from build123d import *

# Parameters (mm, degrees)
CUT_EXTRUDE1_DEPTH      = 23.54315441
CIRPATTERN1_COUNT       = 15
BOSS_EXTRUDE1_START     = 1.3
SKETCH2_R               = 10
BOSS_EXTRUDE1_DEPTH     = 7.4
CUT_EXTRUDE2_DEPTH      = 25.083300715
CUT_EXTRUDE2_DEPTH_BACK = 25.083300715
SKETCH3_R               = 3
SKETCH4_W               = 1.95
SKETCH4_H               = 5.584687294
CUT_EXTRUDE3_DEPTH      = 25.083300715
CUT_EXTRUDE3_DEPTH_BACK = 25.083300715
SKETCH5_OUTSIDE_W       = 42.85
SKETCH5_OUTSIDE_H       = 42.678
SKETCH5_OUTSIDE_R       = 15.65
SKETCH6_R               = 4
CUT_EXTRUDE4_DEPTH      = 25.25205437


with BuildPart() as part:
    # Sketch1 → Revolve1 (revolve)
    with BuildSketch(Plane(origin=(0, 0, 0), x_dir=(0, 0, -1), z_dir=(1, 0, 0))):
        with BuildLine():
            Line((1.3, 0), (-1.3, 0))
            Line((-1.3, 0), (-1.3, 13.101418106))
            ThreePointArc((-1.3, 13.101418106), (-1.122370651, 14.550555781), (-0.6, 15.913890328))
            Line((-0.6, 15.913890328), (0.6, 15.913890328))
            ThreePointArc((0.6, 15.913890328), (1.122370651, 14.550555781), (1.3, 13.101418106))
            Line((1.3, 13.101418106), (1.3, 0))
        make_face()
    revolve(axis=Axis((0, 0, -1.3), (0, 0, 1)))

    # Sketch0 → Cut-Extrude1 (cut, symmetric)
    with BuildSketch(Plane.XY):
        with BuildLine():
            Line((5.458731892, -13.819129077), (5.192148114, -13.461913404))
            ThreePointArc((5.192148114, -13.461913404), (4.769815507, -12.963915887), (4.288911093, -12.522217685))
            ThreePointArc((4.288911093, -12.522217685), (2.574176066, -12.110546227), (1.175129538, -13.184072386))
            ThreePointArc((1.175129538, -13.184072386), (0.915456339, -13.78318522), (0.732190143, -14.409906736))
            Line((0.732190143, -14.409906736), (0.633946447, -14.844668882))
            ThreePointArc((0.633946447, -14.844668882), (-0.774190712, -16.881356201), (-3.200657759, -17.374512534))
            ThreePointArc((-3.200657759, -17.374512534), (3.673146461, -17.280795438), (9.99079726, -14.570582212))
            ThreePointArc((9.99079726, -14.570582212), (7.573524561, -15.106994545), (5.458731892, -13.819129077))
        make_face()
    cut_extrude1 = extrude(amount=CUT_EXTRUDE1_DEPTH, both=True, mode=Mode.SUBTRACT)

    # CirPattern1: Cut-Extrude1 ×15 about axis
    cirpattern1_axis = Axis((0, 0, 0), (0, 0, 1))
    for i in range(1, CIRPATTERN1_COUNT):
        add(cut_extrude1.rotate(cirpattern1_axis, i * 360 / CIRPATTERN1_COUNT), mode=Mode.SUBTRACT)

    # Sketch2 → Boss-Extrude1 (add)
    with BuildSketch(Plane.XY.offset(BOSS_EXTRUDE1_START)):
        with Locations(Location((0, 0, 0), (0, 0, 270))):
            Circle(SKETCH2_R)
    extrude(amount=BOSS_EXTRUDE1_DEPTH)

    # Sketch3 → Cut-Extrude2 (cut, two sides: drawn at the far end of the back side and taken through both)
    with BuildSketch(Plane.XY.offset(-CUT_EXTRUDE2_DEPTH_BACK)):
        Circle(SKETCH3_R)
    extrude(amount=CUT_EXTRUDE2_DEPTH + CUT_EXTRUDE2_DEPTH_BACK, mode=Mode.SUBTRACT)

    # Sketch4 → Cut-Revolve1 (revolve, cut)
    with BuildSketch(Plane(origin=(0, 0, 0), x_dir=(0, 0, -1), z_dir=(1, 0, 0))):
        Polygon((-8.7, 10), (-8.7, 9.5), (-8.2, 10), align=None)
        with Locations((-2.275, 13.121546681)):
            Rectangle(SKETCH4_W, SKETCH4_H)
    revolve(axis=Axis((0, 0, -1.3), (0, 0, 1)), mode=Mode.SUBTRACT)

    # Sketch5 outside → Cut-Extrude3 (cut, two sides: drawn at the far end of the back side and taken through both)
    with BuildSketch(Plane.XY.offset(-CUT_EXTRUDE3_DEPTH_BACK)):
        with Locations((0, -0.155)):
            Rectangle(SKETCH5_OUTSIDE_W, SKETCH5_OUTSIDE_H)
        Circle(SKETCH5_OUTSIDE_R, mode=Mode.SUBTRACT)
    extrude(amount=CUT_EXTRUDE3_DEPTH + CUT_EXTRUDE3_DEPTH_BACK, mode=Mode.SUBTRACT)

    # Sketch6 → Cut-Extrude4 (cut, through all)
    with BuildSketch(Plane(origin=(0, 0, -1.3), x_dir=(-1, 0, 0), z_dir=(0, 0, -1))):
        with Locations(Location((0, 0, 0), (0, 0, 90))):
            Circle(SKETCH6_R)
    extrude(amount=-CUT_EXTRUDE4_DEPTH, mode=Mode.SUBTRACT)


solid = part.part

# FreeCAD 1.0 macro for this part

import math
import FreeCAD as App
import Part
import Sketcher
Q = App.Units.Quantity


def add_polygon(sketch, points):
    """Adds a closed chain of lines whose ends are joined by coincident constraints."""
    first, n = sketch.GeometryCount, len(points)
    for a, b in zip(points, points[1:] + points[:1]):
        sketch.addGeometry(Part.LineSegment(App.Vector(*a, 0), App.Vector(*b, 0)), False)
    for i in range(n):
        sketch.addConstraint(Sketcher.Constraint("Coincident", first + i, 2, first + (i + 1) % n, 1))

doc = App.newDocument("Part")
params = doc.addObject("Spreadsheet::Sheet", "Params")
for row, (alias, value) in enumerate([
    ("sketch1_radius", "6 mm"),
    ("sketch1_height", "2.6 mm"),
    ("sketch1_height2", "1.2 mm"),
    ("revolution_angle", "360 deg"),
    ("pocket1_length", "47.086309 mm"),
    ("sketch3_diameter", "20 mm"),
    ("pad1_length", "7.4 mm"),
    ("sketch4_diameter", "6 mm"),
    ("sketch5_width", "0.5 mm"),
    ("sketch5_height", "1.95 mm"),
    ("groove_angle", "360 deg"),
    ("sketch6_diameter", "31.3 mm"),
    ("sketch6_width", "42.85 mm"),
    ("sketch7_diameter", "8 mm"),
], start=1):
    params.set(f"A{row}", alias)
    params.set(f"B{row}", "=" + value)
    params.setAlias(f"B{row}", alias)

body = doc.addObject("PartDesign::Body", "Body")

# Sketch on YZ plane
sketch1 = doc.addObject("Sketcher::SketchObject", "Sketch")
body.addObject(sketch1)
sketch1.AttachmentSupport = (doc.YZ_Plane, [""])
sketch1.MapMode = "FlatFace"
sketch1.addGeometry([
    Part.LineSegment(App.Vector(0, 1.3, 0), App.Vector(0, -1.3, 0)),  # 0
    Part.LineSegment(App.Vector(0, -1.3, 0), App.Vector(13.1, -1.3, 0)),  # 1
    Part.ArcOfCircle(Part.Circle(App.Vector(13.1, 4.7, 0), App.Vector(0, 0, 1), 6), math.radians(-90), math.radians(-62)),  # 2
    Part.LineSegment(App.Vector(15.9, -0.6, 0), App.Vector(15.9, 0.6, 0)),  # 3
    Part.ArcOfCircle(Part.Circle(App.Vector(13.1, -4.7, 0), App.Vector(0, 0, 1), 6), math.radians(62), math.radians(90)),  # 4
    Part.LineSegment(App.Vector(13.1, 1.3, 0), App.Vector(0, 1.3, 0)),  # 5
], False)
sketch1.addConstraint([
    Sketcher.Constraint("Coincident", 0, 2, 1, 1),
    Sketcher.Constraint("Tangent", 1, 2, 2, 1),
    Sketcher.Constraint("Coincident", 2, 2, 3, 1),
    Sketcher.Constraint("Coincident", 3, 2, 4, 1),
    Sketcher.Constraint("Tangent", 4, 2, 5, 1),
    Sketcher.Constraint("Coincident", 5, 2, 0, 1),
    Sketcher.Constraint("Vertical", 0),
    Sketcher.Constraint("Horizontal", 1),
    Sketcher.Constraint("Vertical", 3),
    Sketcher.Constraint("Horizontal", 5),
    Sketcher.Constraint("Equal", 2, 4),
    Sketcher.Constraint("Symmetric", 0, 2, 5, 2, -1, 1),
    Sketcher.Constraint("Vertical", 2, 3, 4, 3),
    Sketcher.Constraint("Radius", 2, Q("6 mm")),
    Sketcher.Constraint("DistanceY", 0, 2, 0, 1, Q("2.6 mm")),
    Sketcher.Constraint("DistanceY", 3, 1, 3, 2, Q("1.2 mm")),
    Sketcher.Constraint("DistanceX", 1, 1, 1, 2, Q("13.101418 mm")),
])
sketch1.setExpression("Constraints[13]", "Params.sketch1_radius")
sketch1.setExpression("Constraints[14]", "Params.sketch1_height")
sketch1.setExpression("Constraints[15]", "Params.sketch1_height2")
revolution = doc.addObject("PartDesign::Revolution", "Revolution")
body.addObject(revolution)
revolution.Profile = sketch1
revolution.ReferenceAxis = (sketch1, ["V_Axis"])
revolution.setExpression("Angle", "Params.revolution_angle")

# Sketch on XY plane
sketch2 = doc.addObject("Sketcher::SketchObject", "Sketch001")
body.addObject(sketch2)
sketch2.AttachmentSupport = (doc.XY_Plane, [""])
sketch2.MapMode = "FlatFace"
sketch2.addGeometry([
    Part.LineSegment(App.Vector(5.46, -13.82, 0), App.Vector(5.19, -13.46, 0)),  # 0
    Part.ArcOfCircle(Part.Circle(App.Vector(0.99, -16.6, 0), App.Vector(0, 0, 1), 5.25), math.radians(36.73), math.radians(51)),  # 1
    Part.ArcOfCircle(Part.Circle(App.Vector(3, -14.11, 0), App.Vector(0, 0, 1), 2.05), math.radians(51), math.radians(153)),  # 2
    Part.ArcOfCircle(Part.Circle(App.Vector(5.85, -15.57, 0), App.Vector(0, 0, 1), 5.25), math.radians(153), math.radians(167.27)),  # 3
    Part.LineSegment(App.Vector(0.73, -14.41, 0), App.Vector(0.63, -14.84, 0)),  # 4
    Part.ArcOfCircle(Part.Circle(App.Vector(-2.6, -14.11, 0), App.Vector(0, 0, 1), 3.32), math.radians(-100), math.radians(-13)),  # 5
    Part.ArcOfCircle(Part.Circle(App.Vector(0, 0, 0), App.Vector(0, 0, 1), 17.67), math.radians(-100), math.radians(-56)),  # 6
    Part.ArcOfCircle(Part.Circle(App.Vector(8.12, -11.84, 0), App.Vector(0, 0, 1), 3.32), math.radians(-143), math.radians(-56)),  # 7
], False)
sketch2.addConstraint([
    Sketcher.Constraint("Tangent", 0, 2, 1, 1),
    Sketcher.Constraint("Tangent", 1, 2, 2, 1),
    Sketcher.Constraint("Tangent", 2, 2, 3, 1),
    Sketcher.Constraint("Tangent", 3, 2, 4, 1),
    Sketcher.Constraint("Tangent", 4, 2, 5, 2),
    Sketcher.Constraint("Tangent", 5, 1, 6, 1),
    Sketcher.Constraint("Tangent", 6, 2, 7, 2),
    Sketcher.Constraint("Tangent", 7, 1, 0, 1),
    Sketcher.Constraint("Coincident", 6, 3, -1, 1),
    Sketcher.Constraint("Equal", 1, 3),
    Sketcher.Constraint("Equal", 5, 7),
    Sketcher.Constraint("Horizontal", 2, 3, 5, 3),
    Sketcher.Constraint("Equal", 0, 4),
    Sketcher.Constraint("DistanceX", -1, 1, 2, 3, Q("3 mm")),
    Sketcher.Constraint("DistanceX", 5, 3, -1, 1, Q("2.6 mm")),
    Sketcher.Constraint("Radius", 1, Q("5.2481 mm")),
    Sketcher.Constraint("Radius", 2, Q("2.0481 mm")),
    Sketcher.Constraint("Radius", 6, Q("17.666859 mm")),
    Sketcher.Constraint("Radius", 5, Q("3.315486 mm")),
    Sketcher.Constraint("DistanceX", -1, 1, 3, 3, Q("5.851221 mm")),
    Sketcher.Constraint("DistanceX", -1, 1, 0, 2, Q("5.192148 mm")),
])
pocket1 = doc.addObject("PartDesign::Pocket", "Pocket")
body.addObject(pocket1)
pocket1.Profile = sketch2
pocket1.setExpression("Length", "Params.pocket1_length")
pocket1.Midplane = True
doc.recompute()

polarpattern = doc.addObject("PartDesign::PolarPattern", "PolarPattern")
body.addObject(polarpattern)
polarpattern.Originals = [pocket1]
polarpattern.Axis = (doc.Z_Axis, [""])
polarpattern.Angle = 360
polarpattern.Occurrences = 15
body.Tip = polarpattern

# Sketch on XY plane
sketch3 = doc.addObject("Sketcher::SketchObject", "Sketch002")
body.addObject(sketch3)
sketch3.AttachmentSupport = (doc.XY_Plane, [""])
sketch3.MapMode = "FlatFace"
sketch3.AttachmentOffset = App.Placement(App.Vector(0, 0, 1.3), App.Rotation())
sketch3.addGeometry(Part.Circle(App.Vector(0, 0, 0), App.Vector(0, 0, 1), 10), False)
sketch3.addConstraint([
    Sketcher.Constraint("Coincident", 0, 3, -1, 1),
    Sketcher.Constraint("Diameter", 0, Q("20 mm")),
])
sketch3.setExpression("Constraints[1]", "Params.sketch3_diameter")
pad1 = doc.addObject("PartDesign::Pad", "Pad")
body.addObject(pad1)
pad1.Profile = sketch3
pad1.setExpression("Length", "Params.pad1_length")

# Sketch on XY plane
sketch4 = doc.addObject("Sketcher::SketchObject", "Sketch003")
body.addObject(sketch4)
sketch4.AttachmentSupport = (doc.XY_Plane, [""])
sketch4.MapMode = "FlatFace"
sketch4.addGeometry(Part.Circle(App.Vector(0, 0, 0), App.Vector(0, 0, 1), 3), False)
sketch4.addConstraint([
    Sketcher.Constraint("Coincident", 0, 3, -1, 1),
    Sketcher.Constraint("Diameter", 0, Q("6 mm")),
])
sketch4.setExpression("Constraints[1]", "Params.sketch4_diameter")
pocket2 = doc.addObject("PartDesign::Pocket", "Pocket001")
body.addObject(pocket2)
pocket2.Profile = sketch4
pocket2.Type = "ThroughAll"
pocket2.Midplane = True

# Sketch on YZ plane
sketch5 = doc.addObject("Sketcher::SketchObject", "Sketch004")
body.addObject(sketch5)
sketch5.AttachmentSupport = (doc.YZ_Plane, [""])
sketch5.MapMode = "FlatFace"
add_polygon(sketch5, [(10, 8.7), (9.5, 8.7), (10, 8.2)])  # lines 0-2
add_polygon(sketch5, [(15.9, 3.2), (10.3, 3.2), (10.3, 1.3), (15.9, 1.3)])  # lines 3-6
sketch5.addConstraint([
    Sketcher.Constraint("Horizontal", 0),
    Sketcher.Constraint("Vertical", 2),
    Sketcher.Constraint("Horizontal", 3),
    Sketcher.Constraint("Vertical", 4),
    Sketcher.Constraint("Horizontal", 5),
    Sketcher.Constraint("Vertical", 6),
    Sketcher.Constraint("Equal", 0, 2),
    Sketcher.Constraint("DistanceX", 0, 2, 0, 1, Q("0.5 mm")),
    Sketcher.Constraint("DistanceX", -1, 1, 1, 2, Q("10 mm")),
    Sketcher.Constraint("DistanceY", 4, 2, 4, 1, Q("1.95 mm")),
    Sketcher.Constraint("DistanceY", -1, 1, 0, 2, Q("8.7 mm")),
    Sketcher.Constraint("DistanceY", -1, 1, 4, 2, Q("1.3 mm")),
    Sketcher.Constraint("DistanceX", 3, 2, 3, 1, Q("5.584687 mm")),
    Sketcher.Constraint("DistanceX", -1, 1, 5, 2, Q("15.91389 mm")),
])
sketch5.setExpression("Constraints[14]", "Params.sketch5_width")
sketch5.setExpression("Constraints[16]", "Params.sketch5_height")
groove = doc.addObject("PartDesign::Groove", "Groove")
body.addObject(groove)
groove.Profile = sketch5
groove.ReferenceAxis = (sketch5, ["V_Axis"])
groove.setExpression("Angle", "Params.groove_angle")

# Sketch on XY plane
sketch6 = doc.addObject("Sketcher::SketchObject", "Sketch005")
body.addObject(sketch6)
sketch6.AttachmentSupport = (doc.XY_Plane, [""])
sketch6.MapMode = "FlatFace"
add_polygon(sketch6, [(-21, 21), (-21, -21), (21, -21), (21, 21)])  # lines 0-3
sketch6.addGeometry(Part.Circle(App.Vector(0, 0, 0), App.Vector(0, 0, 1), 16), False)  # 4
sketch6.addConstraint([
    Sketcher.Constraint("Vertical", 0),
    Sketcher.Constraint("Horizontal", 1),
    Sketcher.Constraint("Vertical", 2),
    Sketcher.Constraint("Horizontal", 3),
    Sketcher.Constraint("Coincident", 4, 3, -1, 1),
    Sketcher.Constraint("Diameter", 4, Q("31.3 mm")),
    Sketcher.Constraint("DistanceX", 1, 1, 1, 2, Q("42.85 mm")),
    Sketcher.Constraint("DistanceY", 0, 2, 0, 1, Q("42.678 mm")),
    Sketcher.Constraint("DistanceX", 0, 2, -1, 1, Q("21.425 mm")),
    Sketcher.Constraint("DistanceY", 0, 2, -1, 1, Q("21.494 mm")),
])
sketch6.setExpression("Constraints[9]", "Params.sketch6_diameter")
sketch6.setExpression("Constraints[10]", "Params.sketch6_width")
pocket3 = doc.addObject("PartDesign::Pocket", "Pocket002")
body.addObject(pocket3)
pocket3.Profile = sketch6
pocket3.Type = "ThroughAll"
pocket3.Midplane = True

# Sketch on XY plane
sketch7 = doc.addObject("Sketcher::SketchObject", "Sketch006")
body.addObject(sketch7)
sketch7.AttachmentSupport = (doc.XY_Plane, [""])
sketch7.MapMode = "FlatFace"
sketch7.AttachmentOffset = App.Placement(App.Vector(0, 0, -1.3), App.Rotation())
sketch7.addGeometry(Part.Circle(App.Vector(0, 0, 0), App.Vector(0, 0, 1), 4), False)
sketch7.addConstraint([
    Sketcher.Constraint("Coincident", 0, 3, -1, 1),
    Sketcher.Constraint("Diameter", 0, Q("8 mm")),
])
sketch7.setExpression("Constraints[1]", "Params.sketch7_diameter")
pocket4 = doc.addObject("PartDesign::Pocket", "Pocket003")
body.addObject(pocket4)
pocket4.Profile = sketch7
pocket4.Type = "ThroughAll"
pocket4.Reversed = True

doc.recompute()
